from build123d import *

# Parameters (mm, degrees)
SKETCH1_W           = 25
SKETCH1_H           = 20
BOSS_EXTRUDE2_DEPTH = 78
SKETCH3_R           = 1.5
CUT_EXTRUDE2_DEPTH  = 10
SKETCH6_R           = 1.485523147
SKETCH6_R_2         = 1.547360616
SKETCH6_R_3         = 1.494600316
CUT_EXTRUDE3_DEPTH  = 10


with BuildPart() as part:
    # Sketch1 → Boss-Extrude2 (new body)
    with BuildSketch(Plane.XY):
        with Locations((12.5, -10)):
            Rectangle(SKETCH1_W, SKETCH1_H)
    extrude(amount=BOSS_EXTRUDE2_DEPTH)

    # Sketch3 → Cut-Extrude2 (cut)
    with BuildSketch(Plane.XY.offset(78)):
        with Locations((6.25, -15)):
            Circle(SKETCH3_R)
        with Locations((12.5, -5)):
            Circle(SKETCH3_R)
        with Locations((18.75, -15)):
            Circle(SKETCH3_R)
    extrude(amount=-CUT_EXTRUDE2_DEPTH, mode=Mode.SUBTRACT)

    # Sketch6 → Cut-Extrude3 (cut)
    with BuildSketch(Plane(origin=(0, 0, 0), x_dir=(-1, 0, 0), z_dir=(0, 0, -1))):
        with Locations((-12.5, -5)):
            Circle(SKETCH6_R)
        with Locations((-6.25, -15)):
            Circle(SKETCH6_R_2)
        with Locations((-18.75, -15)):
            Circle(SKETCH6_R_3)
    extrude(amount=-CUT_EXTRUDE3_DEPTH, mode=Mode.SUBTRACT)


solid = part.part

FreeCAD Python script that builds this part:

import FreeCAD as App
import Part
import Sketcher
from FreeCAD import Vector


def add_polygon(sketch, points):
    """Adds a closed chain of lines whose ends are joined by coincident constraints."""
    first, n = sketch.GeometryCount, len(points)
    for a, b in zip(points, points[1:] + points[:1]):
        sketch.addGeometry(Part.LineSegment(App.Vector(*a, 0), App.Vector(*b, 0)), False)
    for i in range(n):
        sketch.addConstraint(Sketcher.Constraint("Coincident", first + i, 2, first + (i + 1) % n, 1))

doc = App.newDocument("Part")
body = doc.addObject("PartDesign::Body", "Body")

# Sketch on XY plane
sketch1 = body.newObject("Sketcher::SketchObject", "Sketch")
sketch1.AttachmentSupport = (doc.getObject("XY_Plane"), [""])
sketch1.MapMode = "FlatFace"
add_polygon(sketch1, [(0, 0), (0, -20), (25, -20), (25, 0)])  # lines 0-3
sketch1.addConstraint([
    Sketcher.Constraint("Vertical", 0),
    Sketcher.Constraint("Horizontal", 1),
    Sketcher.Constraint("Vertical", 2),
    Sketcher.Constraint("Horizontal", 3),
    Sketcher.Constraint("Coincident", 3, 2, -1, 1),
    Sketcher.Constraint("DistanceX", 1, 1, 1, 2, 25.0),
    Sketcher.Constraint("DistanceY", 0, 2, 0, 1, 20.0),
])
pad1 = body.newObject("PartDesign::Pad", "Pad")
pad1.Profile = sketch1
pad1.Length = 78

# Sketch on XY plane
sketch2 = body.newObject("Sketcher::SketchObject", "Sketch001")
sketch2.AttachmentSupport = (doc.getObject("XY_Plane"), [""])
sketch2.MapMode = "FlatFace"
sketch2.AttachmentOffset = App.Placement(Vector(0, 0, 78), App.Rotation())
sketch2.addGeometry([
    Part.Circle(Vector(6.2, -15, 0), Vector(0, 0, 1), 1.5),
    Part.Circle(Vector(12.5, -5, 0), Vector(0, 0, 1), 1.5),
    Part.Circle(Vector(18.8, -15, 0), Vector(0, 0, 1), 1.5),
], False)
sketch2.addConstraint([
    Sketcher.Constraint("Equal", 0, 1),
    Sketcher.Constraint("Equal", 1, 2),
    Sketcher.Constraint("Horizontal", 0, 3, 2, 3),
    Sketcher.Constraint("Diameter", 0, 3.0),
    Sketcher.Constraint("DistanceY", 0, 3, -1, 1, 15.0),
    Sketcher.Constraint("DistanceY", 1, 3, -1, 1, 5.0),
    Sketcher.Constraint("DistanceX", -1, 1, 1, 3, 12.5),
    Sketcher.Constraint("DistanceX", 0, 3, 2, 3, 12.5),
    Sketcher.Constraint("DistanceX", -1, 1, 0, 3, 6.25),
])
pocket1 = body.newObject("PartDesign::Pocket", "Pocket")
pocket1.Profile = sketch2
pocket1.Length = 10

# Sketch on XY plane
sketch3 = body.newObject("Sketcher::SketchObject", "Sketch002")
sketch3.AttachmentSupport = (doc.getObject("XY_Plane"), [""])
sketch3.MapMode = "FlatFace"
sketch3.addGeometry([
    Part.Circle(Vector(12.5, -5, 0), Vector(0, 0, 1), 1.5),
    Part.Circle(Vector(6.2, -15, 0), Vector(0, 0, 1), 1.5),
    Part.Circle(Vector(18.8, -15, 0), Vector(0, 0, 1), 1.5),
], False)
sketch3.addConstraint([
    Sketcher.Constraint("Horizontal", 1, 3, 2, 3),
    Sketcher.Constraint("DistanceY", 0, 3, -1, 1, 5.0),
    Sketcher.Constraint("DistanceY", 1, 3, -1, 1, 15.0),
    Sketcher.Constraint("Diameter", 2, 2.989201),
    Sketcher.Constraint("DistanceX", -1, 1, 0, 3, 12.5),
    Sketcher.Constraint("DistanceX", 1, 3, 2, 3, 12.5),
    Sketcher.Constraint("Diameter", 1, 3.094721),
    Sketcher.Constraint("DistanceX", -1, 1, 1, 3, 6.25),
    Sketcher.Constraint("Diameter", 0, 2.971046),
])
pocket2 = body.newObject("PartDesign::Pocket", "Pocket001")
pocket2.Profile = sketch3
pocket2.Length = 10
pocket2.Reversed = True

doc.recompute()
